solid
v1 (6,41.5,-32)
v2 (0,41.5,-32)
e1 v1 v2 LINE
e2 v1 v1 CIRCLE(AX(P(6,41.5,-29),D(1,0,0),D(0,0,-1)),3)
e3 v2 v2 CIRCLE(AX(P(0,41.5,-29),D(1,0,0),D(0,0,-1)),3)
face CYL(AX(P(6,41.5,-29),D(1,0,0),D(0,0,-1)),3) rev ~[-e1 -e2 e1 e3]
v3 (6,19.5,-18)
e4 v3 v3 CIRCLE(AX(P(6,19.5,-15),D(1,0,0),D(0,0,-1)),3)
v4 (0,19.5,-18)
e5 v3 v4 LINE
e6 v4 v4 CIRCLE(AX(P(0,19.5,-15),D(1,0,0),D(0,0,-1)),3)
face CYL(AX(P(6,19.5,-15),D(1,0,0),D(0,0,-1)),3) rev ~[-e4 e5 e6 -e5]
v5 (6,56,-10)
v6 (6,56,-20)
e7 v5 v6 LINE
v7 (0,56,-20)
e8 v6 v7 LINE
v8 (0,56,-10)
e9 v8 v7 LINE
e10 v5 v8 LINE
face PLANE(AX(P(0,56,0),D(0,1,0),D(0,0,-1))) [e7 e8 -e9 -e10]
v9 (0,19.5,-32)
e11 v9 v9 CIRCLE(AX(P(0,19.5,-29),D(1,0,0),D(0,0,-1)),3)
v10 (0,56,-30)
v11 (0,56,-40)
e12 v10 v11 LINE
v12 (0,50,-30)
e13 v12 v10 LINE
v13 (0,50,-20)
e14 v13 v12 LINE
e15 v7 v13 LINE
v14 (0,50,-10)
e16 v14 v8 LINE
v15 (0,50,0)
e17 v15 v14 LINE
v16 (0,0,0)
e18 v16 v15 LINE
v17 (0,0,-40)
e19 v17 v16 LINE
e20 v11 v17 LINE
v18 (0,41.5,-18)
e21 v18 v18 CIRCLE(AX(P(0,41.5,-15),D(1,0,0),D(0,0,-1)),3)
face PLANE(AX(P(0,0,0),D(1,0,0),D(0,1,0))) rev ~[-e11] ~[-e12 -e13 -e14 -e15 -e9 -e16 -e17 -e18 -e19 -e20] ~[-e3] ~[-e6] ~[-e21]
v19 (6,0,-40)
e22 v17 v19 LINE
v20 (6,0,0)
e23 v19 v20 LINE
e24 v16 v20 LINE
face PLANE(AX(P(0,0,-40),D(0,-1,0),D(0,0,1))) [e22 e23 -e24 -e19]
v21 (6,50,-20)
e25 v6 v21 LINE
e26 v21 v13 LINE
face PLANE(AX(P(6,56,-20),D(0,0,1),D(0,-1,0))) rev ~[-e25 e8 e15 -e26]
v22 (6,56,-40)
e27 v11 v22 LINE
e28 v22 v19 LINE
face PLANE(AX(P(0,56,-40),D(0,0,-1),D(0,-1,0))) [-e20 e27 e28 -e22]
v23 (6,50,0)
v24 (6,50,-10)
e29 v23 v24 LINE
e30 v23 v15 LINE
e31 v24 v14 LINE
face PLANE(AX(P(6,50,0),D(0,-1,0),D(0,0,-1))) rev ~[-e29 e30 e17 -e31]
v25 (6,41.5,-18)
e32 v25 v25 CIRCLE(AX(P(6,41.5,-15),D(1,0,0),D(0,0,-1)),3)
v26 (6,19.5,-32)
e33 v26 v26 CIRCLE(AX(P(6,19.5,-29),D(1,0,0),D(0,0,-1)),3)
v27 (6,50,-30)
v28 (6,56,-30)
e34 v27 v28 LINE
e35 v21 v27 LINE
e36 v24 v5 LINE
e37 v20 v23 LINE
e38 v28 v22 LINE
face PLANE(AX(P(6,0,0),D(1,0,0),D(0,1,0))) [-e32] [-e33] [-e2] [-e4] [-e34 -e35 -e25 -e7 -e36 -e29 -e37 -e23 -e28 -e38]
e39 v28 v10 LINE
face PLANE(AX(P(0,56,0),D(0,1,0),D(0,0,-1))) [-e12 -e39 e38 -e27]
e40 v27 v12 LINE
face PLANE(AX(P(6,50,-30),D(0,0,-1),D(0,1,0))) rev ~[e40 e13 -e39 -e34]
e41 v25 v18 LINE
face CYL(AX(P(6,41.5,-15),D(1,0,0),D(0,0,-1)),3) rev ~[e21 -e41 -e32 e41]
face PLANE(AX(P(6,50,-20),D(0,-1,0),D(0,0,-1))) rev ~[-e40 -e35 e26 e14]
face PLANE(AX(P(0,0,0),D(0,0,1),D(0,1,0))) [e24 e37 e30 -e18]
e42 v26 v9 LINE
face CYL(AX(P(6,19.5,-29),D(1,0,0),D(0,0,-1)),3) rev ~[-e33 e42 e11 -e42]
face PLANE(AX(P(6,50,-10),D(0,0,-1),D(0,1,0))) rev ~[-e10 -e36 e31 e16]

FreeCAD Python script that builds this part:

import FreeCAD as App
import Part
import Sketcher

V = App.Vector
Q = App.Units.Quantity

doc = App.newDocument("Part")
body = doc.addObject("PartDesign::Body", "Body")

sketch1 = body.newObject("Sketcher::SketchObject", "Sketch")
sketch1.AttachmentSupport = (doc.getObject("YZ_Plane"), [""])
sketch1.MapMode = "FlatFace"
sketch1.addGeometry(Part.LineSegment(V(56, 0, 0), V(0, 0, 0)), False)
sketch1.addGeometry(Part.LineSegment(V(0, 0, 0), V(0, -40, 0)), False)
sketch1.addGeometry(Part.LineSegment(V(0, -40, 0), V(56, -40, 0)), False)
sketch1.addGeometry(Part.LineSegment(V(56, -40, 0), V(56, 0, 0)), False)
sketch1.addConstraint(Sketcher.Constraint("Coincident", 0, 2, 1, 1))
sketch1.addConstraint(Sketcher.Constraint("Coincident", 1, 2, 2, 1))
sketch1.addConstraint(Sketcher.Constraint("Coincident", 2, 2, 3, 1))
sketch1.addConstraint(Sketcher.Constraint("Coincident", 3, 2, 0, 1))
sketch1.addConstraint(Sketcher.Constraint("Horizontal", 0))
sketch1.addConstraint(Sketcher.Constraint("Vertical", 1))
sketch1.addConstraint(Sketcher.Constraint("Horizontal", 2))
sketch1.addConstraint(Sketcher.Constraint("Vertical", 3))
sketch1.addConstraint(Sketcher.Constraint("Coincident", 0, 2, -1, 1))
sketch1.addConstraint(Sketcher.Constraint("DistanceX", 0, 2, 0, 1, Q("56 mm")))
sketch1.addConstraint(Sketcher.Constraint("DistanceY", 1, 2, 1, 1, Q("40 mm")))
pad1 = body.newObject("PartDesign::Pad", "Pad")
pad1.Profile = sketch1
pad1.Length = 6

sketch2 = body.newObject("Sketcher::SketchObject", "Sketch001")
sketch2.AttachmentSupport = (doc.getObject("YZ_Plane"), [""])
sketch2.MapMode = "FlatFace"
sketch2.AttachmentOffset = App.Placement(V(0, 0, 6), App.Rotation())
sketch2.addGeometry(Part.LineSegment(V(50, -30, 0), V(56, -30, 0)), False)
sketch2.addGeometry(Part.LineSegment(V(56, -30, 0), V(56, -20, 0)), False)
sketch2.addGeometry(Part.LineSegment(V(56, -20, 0), V(50, -20, 0)), False)
sketch2.addGeometry(Part.LineSegment(V(50, -20, 0), V(50, -30, 0)), False)
sketch2.addConstraint(Sketcher.Constraint("Coincident", 0, 2, 1, 1))
sketch2.addConstraint(Sketcher.Constraint("Coincident", 1, 2, 2, 1))
sketch2.addConstraint(Sketcher.Constraint("Coincident", 2, 2, 3, 1))
sketch2.addConstraint(Sketcher.Constraint("Coincident", 3, 2, 0, 1))
sketch2.addConstraint(Sketcher.Constraint("Horizontal", 0))
sketch2.addConstraint(Sketcher.Constraint("Vertical", 1))
sketch2.addConstraint(Sketcher.Constraint("Horizontal", 2))
sketch2.addConstraint(Sketcher.Constraint("Vertical", 3))
sketch2.addConstraint(Sketcher.Constraint("DistanceX", 0, 1, 0, 2, Q("6 mm")))
sketch2.addConstraint(Sketcher.Constraint("DistanceY", 1, 1, 1, 2, Q("10 mm")))
sketch2.addConstraint(Sketcher.Constraint("DistanceX", -1, 1, 0, 2, Q("56 mm")))
sketch2.addConstraint(Sketcher.Constraint("DistanceY", 0, 2, -1, 1, Q("30 mm")))
pocket1 = body.newObject("PartDesign::Pocket", "Pocket")
pocket1.Profile = sketch2
pocket1.Length = 6
doc.recompute()

linearpattern = body.newObject("PartDesign::LinearPattern", "LinearPattern")
linearpattern.Originals = [pocket1]
linearpattern.Direction = (doc.getObject("Z_Axis"), [""])
linearpattern.Mode = "offset"
linearpattern.Offset = 20
linearpattern.Occurrences = 2
body.Tip = linearpattern

sketch3 = body.newObject("Sketcher::SketchObject", "Sketch002")
sketch3.AttachmentSupport = (doc.getObject("YZ_Plane"), [""])
sketch3.MapMode = "FlatFace"
sketch3.AttachmentOffset = App.Placement(V(0, 0, 6), App.Rotation())
sketch3.addGeometry(Part.Circle(V(41.5, -15, 0), V(0, 0, 1), 3), False)
sketch3.addGeometry(Part.Circle(V(41.5, -29, 0), V(0, 0, 1), 3), False)
sketch3.addGeometry(Part.Circle(V(19.5, -15, 0), V(0, 0, 1), 3), False)
sketch3.addGeometry(Part.Circle(V(19.5, -29, 0), V(0, 0, 1), 3), False)
sketch3.addConstraint(Sketcher.Constraint("Equal", 0, 1))
sketch3.addConstraint(Sketcher.Constraint("Equal", 1, 2))
sketch3.addConstraint(Sketcher.Constraint("Equal", 2, 3))
sketch3.addConstraint(Sketcher.Constraint("Horizontal", 0, 3, 2, 3))
sketch3.addConstraint(Sketcher.Constraint("Horizontal", 1, 3, 3, 3))
sketch3.addConstraint(Sketcher.Constraint("Vertical", 0, 3, 1, 3))
sketch3.addConstraint(Sketcher.Constraint("Vertical", 2, 3, 3, 3))
sketch3.addConstraint(Sketcher.Constraint("Diameter", 0, Q("6 mm")))
sketch3.addConstraint(Sketcher.Constraint("DistanceY", 0, 3, -1, 1, Q("15 mm")))
sketch3.addConstraint(Sketcher.Constraint("DistanceY", 1, 3, -1, 1, Q("29 mm")))
sketch3.addConstraint(Sketcher.Constraint("DistanceX", 2, 3, 0, 3, Q("22 mm")))
sketch3.addConstraint(Sketcher.Constraint("DistanceX", -1, 1, 0, 3, Q("41.5 mm")))
pocket2 = body.newObject("PartDesign::Pocket", "Pocket001")
pocket2.Profile = sketch3
pocket2.Length = 6

doc.recompute()
